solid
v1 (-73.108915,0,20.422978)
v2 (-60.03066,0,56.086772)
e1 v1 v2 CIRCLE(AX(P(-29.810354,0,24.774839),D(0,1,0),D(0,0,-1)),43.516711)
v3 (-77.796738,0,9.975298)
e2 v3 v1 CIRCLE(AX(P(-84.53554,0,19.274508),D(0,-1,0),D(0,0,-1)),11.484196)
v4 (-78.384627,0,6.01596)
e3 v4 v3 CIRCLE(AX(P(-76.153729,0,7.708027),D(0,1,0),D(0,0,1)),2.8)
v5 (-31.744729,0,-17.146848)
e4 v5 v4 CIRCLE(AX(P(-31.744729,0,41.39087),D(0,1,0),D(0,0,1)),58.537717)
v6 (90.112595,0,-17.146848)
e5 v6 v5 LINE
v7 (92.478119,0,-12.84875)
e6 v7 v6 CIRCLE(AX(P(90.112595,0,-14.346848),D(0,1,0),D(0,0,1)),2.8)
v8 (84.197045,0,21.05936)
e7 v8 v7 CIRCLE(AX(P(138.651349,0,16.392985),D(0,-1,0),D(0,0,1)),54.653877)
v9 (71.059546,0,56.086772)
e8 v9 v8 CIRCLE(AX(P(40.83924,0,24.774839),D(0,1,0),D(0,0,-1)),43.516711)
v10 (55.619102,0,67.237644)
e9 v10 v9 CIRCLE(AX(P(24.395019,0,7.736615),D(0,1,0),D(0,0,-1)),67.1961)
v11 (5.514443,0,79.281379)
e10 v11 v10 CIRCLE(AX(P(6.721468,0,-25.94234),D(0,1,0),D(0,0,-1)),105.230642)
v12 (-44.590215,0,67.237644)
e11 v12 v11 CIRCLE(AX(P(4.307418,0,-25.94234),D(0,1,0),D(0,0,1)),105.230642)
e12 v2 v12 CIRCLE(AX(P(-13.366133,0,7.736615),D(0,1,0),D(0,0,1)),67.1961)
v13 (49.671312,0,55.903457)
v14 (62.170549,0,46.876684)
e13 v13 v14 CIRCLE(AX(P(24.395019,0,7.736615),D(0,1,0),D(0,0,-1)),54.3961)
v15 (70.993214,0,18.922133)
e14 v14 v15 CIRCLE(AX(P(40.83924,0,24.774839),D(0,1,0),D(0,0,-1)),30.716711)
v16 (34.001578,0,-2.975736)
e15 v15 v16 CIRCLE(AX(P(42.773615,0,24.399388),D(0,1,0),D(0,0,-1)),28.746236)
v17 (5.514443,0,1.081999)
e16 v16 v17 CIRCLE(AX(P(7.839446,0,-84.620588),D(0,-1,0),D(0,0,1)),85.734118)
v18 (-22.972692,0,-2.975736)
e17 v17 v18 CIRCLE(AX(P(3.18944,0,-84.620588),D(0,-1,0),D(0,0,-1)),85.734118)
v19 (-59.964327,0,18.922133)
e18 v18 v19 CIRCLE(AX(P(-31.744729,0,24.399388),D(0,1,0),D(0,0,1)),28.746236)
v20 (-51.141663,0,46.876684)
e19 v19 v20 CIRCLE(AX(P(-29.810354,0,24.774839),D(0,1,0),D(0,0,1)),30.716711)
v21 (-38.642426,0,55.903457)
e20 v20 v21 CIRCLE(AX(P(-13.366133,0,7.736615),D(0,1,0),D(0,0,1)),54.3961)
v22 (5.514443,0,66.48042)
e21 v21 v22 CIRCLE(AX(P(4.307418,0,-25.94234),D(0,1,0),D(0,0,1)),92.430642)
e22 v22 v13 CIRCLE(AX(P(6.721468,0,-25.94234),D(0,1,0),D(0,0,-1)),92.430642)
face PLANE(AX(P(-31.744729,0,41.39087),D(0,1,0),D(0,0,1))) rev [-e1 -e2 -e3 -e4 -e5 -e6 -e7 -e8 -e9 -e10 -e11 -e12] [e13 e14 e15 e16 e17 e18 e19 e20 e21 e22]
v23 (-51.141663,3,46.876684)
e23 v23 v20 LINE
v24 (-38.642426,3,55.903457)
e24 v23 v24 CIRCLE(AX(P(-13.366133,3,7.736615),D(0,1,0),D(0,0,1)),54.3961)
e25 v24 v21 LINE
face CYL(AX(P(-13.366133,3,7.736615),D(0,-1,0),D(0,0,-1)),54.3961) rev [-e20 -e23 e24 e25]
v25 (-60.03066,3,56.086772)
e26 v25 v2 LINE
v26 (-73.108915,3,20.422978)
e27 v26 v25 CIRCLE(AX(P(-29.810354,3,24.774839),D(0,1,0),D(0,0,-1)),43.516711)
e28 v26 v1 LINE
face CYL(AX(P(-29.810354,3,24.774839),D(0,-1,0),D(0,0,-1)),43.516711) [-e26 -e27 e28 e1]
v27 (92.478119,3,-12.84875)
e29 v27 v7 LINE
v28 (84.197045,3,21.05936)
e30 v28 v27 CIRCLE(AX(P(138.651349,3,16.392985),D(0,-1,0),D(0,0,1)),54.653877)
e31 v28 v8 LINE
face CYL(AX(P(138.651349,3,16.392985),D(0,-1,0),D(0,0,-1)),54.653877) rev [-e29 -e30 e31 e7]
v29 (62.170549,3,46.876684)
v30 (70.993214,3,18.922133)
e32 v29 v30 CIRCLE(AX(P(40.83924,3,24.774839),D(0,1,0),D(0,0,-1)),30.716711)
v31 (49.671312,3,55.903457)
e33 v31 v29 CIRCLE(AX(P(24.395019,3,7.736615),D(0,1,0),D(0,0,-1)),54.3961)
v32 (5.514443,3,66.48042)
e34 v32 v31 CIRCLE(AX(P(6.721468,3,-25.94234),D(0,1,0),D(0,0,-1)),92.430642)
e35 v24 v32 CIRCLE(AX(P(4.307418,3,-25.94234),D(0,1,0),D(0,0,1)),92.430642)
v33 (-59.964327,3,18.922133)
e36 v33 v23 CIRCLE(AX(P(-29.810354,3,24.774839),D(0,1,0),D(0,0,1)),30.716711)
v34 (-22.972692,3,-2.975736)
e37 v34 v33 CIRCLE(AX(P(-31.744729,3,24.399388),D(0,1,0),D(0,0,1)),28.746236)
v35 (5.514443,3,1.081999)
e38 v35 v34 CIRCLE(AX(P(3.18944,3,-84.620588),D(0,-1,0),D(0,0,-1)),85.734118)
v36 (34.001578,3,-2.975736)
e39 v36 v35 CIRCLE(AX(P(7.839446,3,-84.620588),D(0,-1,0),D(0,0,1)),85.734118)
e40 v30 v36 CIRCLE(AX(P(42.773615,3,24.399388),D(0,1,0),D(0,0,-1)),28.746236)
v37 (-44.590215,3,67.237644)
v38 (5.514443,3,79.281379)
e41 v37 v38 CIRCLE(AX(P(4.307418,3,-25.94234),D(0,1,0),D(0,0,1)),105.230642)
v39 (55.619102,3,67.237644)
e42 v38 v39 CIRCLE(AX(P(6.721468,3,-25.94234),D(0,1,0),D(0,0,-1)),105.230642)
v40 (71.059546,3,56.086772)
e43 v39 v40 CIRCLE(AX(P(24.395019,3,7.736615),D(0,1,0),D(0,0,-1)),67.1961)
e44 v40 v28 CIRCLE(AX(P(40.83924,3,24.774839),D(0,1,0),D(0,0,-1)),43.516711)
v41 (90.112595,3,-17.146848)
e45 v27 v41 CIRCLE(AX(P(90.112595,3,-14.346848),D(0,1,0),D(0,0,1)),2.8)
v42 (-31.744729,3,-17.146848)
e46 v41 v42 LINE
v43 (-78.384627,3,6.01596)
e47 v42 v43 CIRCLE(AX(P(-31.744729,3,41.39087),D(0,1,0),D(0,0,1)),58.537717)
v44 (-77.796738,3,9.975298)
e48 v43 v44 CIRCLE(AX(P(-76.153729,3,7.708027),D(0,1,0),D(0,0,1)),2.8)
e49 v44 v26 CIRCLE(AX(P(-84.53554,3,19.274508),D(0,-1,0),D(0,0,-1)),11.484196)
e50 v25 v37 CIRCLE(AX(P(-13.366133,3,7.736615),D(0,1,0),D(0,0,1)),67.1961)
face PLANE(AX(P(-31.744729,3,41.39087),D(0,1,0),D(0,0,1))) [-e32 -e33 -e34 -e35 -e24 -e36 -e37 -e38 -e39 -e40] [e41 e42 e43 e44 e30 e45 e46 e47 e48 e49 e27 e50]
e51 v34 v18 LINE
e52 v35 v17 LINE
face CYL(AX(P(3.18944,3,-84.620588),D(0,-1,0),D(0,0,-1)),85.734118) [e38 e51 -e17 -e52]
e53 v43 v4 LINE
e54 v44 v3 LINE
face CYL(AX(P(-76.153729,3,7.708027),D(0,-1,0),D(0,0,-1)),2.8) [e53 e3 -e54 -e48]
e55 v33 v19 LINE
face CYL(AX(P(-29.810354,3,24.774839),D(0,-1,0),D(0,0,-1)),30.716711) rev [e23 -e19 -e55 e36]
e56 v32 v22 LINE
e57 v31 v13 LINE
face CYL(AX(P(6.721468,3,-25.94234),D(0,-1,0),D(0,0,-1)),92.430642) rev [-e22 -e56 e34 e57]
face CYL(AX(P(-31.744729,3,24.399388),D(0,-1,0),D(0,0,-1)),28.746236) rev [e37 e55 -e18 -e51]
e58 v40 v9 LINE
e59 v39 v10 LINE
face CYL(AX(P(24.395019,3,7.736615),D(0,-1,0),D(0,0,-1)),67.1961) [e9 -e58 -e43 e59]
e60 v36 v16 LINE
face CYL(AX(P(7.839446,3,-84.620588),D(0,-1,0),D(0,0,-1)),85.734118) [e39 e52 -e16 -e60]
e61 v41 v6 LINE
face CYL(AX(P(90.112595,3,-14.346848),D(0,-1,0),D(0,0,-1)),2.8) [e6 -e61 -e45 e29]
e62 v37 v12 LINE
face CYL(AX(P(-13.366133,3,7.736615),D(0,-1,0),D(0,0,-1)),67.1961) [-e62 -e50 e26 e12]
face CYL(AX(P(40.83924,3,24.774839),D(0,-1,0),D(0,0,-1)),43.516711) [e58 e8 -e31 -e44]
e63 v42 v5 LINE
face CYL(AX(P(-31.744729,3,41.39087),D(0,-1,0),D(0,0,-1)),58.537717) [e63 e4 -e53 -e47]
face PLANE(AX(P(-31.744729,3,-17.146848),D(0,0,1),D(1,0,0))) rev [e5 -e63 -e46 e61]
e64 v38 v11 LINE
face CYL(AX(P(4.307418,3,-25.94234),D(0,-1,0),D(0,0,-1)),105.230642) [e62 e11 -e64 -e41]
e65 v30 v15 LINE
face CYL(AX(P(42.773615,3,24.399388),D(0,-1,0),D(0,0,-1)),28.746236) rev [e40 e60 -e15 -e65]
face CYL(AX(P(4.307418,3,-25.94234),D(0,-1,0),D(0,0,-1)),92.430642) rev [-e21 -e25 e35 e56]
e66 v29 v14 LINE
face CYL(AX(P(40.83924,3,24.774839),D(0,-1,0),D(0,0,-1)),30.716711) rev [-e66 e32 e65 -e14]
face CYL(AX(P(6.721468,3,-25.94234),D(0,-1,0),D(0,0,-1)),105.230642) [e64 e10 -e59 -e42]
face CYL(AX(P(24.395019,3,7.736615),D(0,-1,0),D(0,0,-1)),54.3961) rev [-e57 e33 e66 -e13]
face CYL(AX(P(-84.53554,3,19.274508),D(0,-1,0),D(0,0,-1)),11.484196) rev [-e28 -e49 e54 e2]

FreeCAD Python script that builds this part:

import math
import FreeCAD as App
import Part
import Sketcher

V = App.Vector
Q = App.Units.Quantity

doc = App.newDocument("Part")
body = doc.addObject("PartDesign::Body", "Body")

# Sketch on XZ plane
sketch1 = body.newObject("Sketcher::SketchObject", "Sketch")
sketch1.AttachmentSupport = (doc.getObject("XZ_Plane"), [""])
sketch1.MapMode = "FlatFace"
sketch1.addGeometry(Part.LineSegment(V(90.1, -17.1, 0), V(-31.7, -17.1, 0)), False)
sketch1.addGeometry(Part.ArcOfCircle(Part.Circle(V(-31.7, 41.4, 0), V(0, 0, 1), 58.5), math.radians(-143), math.radians(-90)), False)
sketch1.addGeometry(Part.ArcOfCircle(Part.Circle(V(-76.2, 7.7, 0), V(0, 0, 1), 2.8), math.radians(126), math.radians(217)), False)
sketch1.addGeometry(Part.ArcOfCircle(Part.Circle(V(-84.5, 19.3, 0), V(0, 0, 1), 11.5), math.radians(-54), math.radians(6)), False)
sketch1.addGeometry(Part.ArcOfCircle(Part.Circle(V(-29.8, 24.8, 0), V(0, 0, 1), 43.5), math.radians(134), math.radians(186)), False)
sketch1.addGeometry(Part.ArcOfCircle(Part.Circle(V(-13.4, 7.7, 0), V(0, 0, 1), 67.2), math.radians(117.69), math.radians(133.98)), False)
sketch1.addGeometry(Part.ArcOfCircle(Part.Circle(V(4.3, -25.9, 0), V(0, 0, 1), 105.2), math.radians(89), math.radians(118)), False)
sketch1.addGeometry(Part.ArcOfCircle(Part.Circle(V(6.7, -25.9, 0), V(0, 0, 1), 105.2), math.radians(62), math.radians(91)), False)
sketch1.addGeometry(Part.ArcOfCircle(Part.Circle(V(24.4, 7.7, 0), V(0, 0, 1), 67.2), math.radians(46.02), math.radians(62.31)), False)
sketch1.addGeometry(Part.ArcOfCircle(Part.Circle(V(40.8, 24.8, 0), V(0, 0, 1), 43.5), math.radians(-5), math.radians(46)), False)
sketch1.addGeometry(Part.ArcOfCircle(Part.Circle(V(138.7, 16.4, 0), V(0, 0, 1), 54.7), math.radians(175), math.radians(212)), False)
sketch1.addGeometry(Part.ArcOfCircle(Part.Circle(V(90.1, -14.3, 0), V(0, 0, 1), 2.8), math.radians(-90), math.radians(32)), False)
sketch1.addGeometry(Part.ArcOfCircle(Part.Circle(V(7.8, -84.6, 0), V(0, 0, 1), 85.7), math.radians(72.23), math.radians(91.55)), False)
sketch1.addGeometry(Part.ArcOfCircle(Part.Circle(V(42.8, 24.4, 0), V(0, 0, 1), 28.7), math.radians(-108), math.radians(-11)), False)
sketch1.addGeometry(Part.ArcOfCircle(Part.Circle(V(40.8, 24.8, 0), V(0, 0, 1), 30.7), math.radians(-11), math.radians(46)), False)
sketch1.addGeometry(Part.ArcOfCircle(Part.Circle(V(24.4, 7.7, 0), V(0, 0, 1), 54.4), math.radians(46.02), math.radians(62.31)), False)
sketch1.addGeometry(Part.ArcOfCircle(Part.Circle(V(6.7, -25.9, 0), V(0, 0, 1), 92.4), math.radians(62), math.radians(91)), False)
sketch1.addGeometry(Part.ArcOfCircle(Part.Circle(V(4.3, -25.9, 0), V(0, 0, 1), 92.4), math.radians(89), math.radians(118)), False)
sketch1.addGeometry(Part.ArcOfCircle(Part.Circle(V(-13.4, 7.7, 0), V(0, 0, 1), 54.4), math.radians(117.69), math.radians(133.98)), False)
sketch1.addGeometry(Part.ArcOfCircle(Part.Circle(V(-29.8, 24.8, 0), V(0, 0, 1), 30.7), math.radians(134), math.radians(191)), False)
sketch1.addGeometry(Part.ArcOfCircle(Part.Circle(V(-31.7, 24.4, 0), V(0, 0, 1), 28.7), math.radians(-169), math.radians(-72)), False)
sketch1.addGeometry(Part.ArcOfCircle(Part.Circle(V(3.2, -84.6, 0), V(0, 0, 1), 85.7), math.radians(88.45), math.radians(107.77)), False)
sketch1.addConstraint(Sketcher.Constraint("Tangent", 0, 2, 1, 2))
sketch1.addConstraint(Sketcher.Constraint("Tangent", 1, 1, 2, 2))
sketch1.addConstraint(Sketcher.Constraint("Tangent", 2, 1, 3, 1))
sketch1.addConstraint(Sketcher.Constraint("Tangent", 3, 2, 4, 2))
sketch1.addConstraint(Sketcher.Constraint("Tangent", 4, 1, 5, 2))
sketch1.addConstraint(Sketcher.Constraint("Tangent", 5, 1, 6, 2))
sketch1.addConstraint(Sketcher.Constraint("Coincident", 6, 1, 7, 2))
sketch1.addConstraint(Sketcher.Constraint("Tangent", 7, 1, 8, 2))
sketch1.addConstraint(Sketcher.Constraint("Tangent", 8, 1, 9, 2))
sketch1.addConstraint(Sketcher.Constraint("Tangent", 9, 1, 10, 1))
sketch1.addConstraint(Sketcher.Constraint("Tangent", 10, 2, 11, 2))
sketch1.addConstraint(Sketcher.Constraint("Tangent", 11, 1, 0, 1))
sketch1.addConstraint(Sketcher.Constraint("Tangent", 12, 1, 13, 1))
sketch1.addConstraint(Sketcher.Constraint("Tangent", 13, 2, 14, 1))
sketch1.addConstraint(Sketcher.Constraint("Tangent", 14, 2, 15, 1))
sketch1.addConstraint(Sketcher.Constraint("Tangent", 15, 2, 16, 1))
sketch1.addConstraint(Sketcher.Constraint("Coincident", 16, 2, 17, 1))
sketch1.addConstraint(Sketcher.Constraint("Tangent", 17, 2, 18, 1))
sketch1.addConstraint(Sketcher.Constraint("Tangent", 18, 2, 19, 1))
sketch1.addConstraint(Sketcher.Constraint("Tangent", 19, 2, 20, 1))
sketch1.addConstraint(Sketcher.Constraint("Tangent", 20, 2, 21, 2))
sketch1.addConstraint(Sketcher.Constraint("Coincident", 21, 1, 12, 2))
sketch1.addConstraint(Sketcher.Constraint("Horizontal", 0))
sketch1.addConstraint(Sketcher.Constraint("Coincident", 14, 3, 9, 3))
sketch1.addConstraint(Sketcher.Constraint("Coincident", 15, 3, 8, 3))
sketch1.addConstraint(Sketcher.Constraint("Coincident", 16, 3, 7, 3))
sketch1.addConstraint(Sketcher.Constraint("Coincident", 17, 3, 6, 3))
sketch1.addConstraint(Sketcher.Constraint("Coincident", 18, 3, 5, 3))
sketch1.addConstraint(Sketcher.Constraint("Coincident", 19, 3, 4, 3))
sketch1.addConstraint(Sketcher.Constraint("Equal", 6, 7))
sketch1.addConstraint(Sketcher.Constraint("Equal", 5, 8))
sketch1.addConstraint(Sketcher.Constraint("Equal", 4, 9))
sketch1.addConstraint(Sketcher.Constraint("Equal", 2, 11))
sketch1.addConstraint(Sketcher.Constraint("Equal", 16, 17))
sketch1.addConstraint(Sketcher.Constraint("Equal", 13, 20))
sketch1.addConstraint(Sketcher.Constraint("Equal", 12, 21))
sketch1.addConstraint(Sketcher.Constraint("Horizontal", 6, 3, 7, 3))
sketch1.addConstraint(Sketcher.Constraint("Horizontal", 5, 3, 8, 3))
sketch1.addConstraint(Sketcher.Constraint("Horizontal", 4, 3, 9, 3))
sketch1.addConstraint(Sketcher.Constraint("Horizontal", 13, 3, 20, 3))
sketch1.addConstraint(Sketcher.Constraint("Horizontal", 12, 3, 21, 3))
sketch1.addConstraint(Sketcher.Constraint("Vertical", 1, 3, 20, 3))
sketch1.addConstraint(Sketcher.Constraint("Radius", 2, Q("2.8 mm")))
sketch1.addConstraint(Sketcher.Constraint("Radius", 5, Q("67.1961 mm")))
sketch1.addConstraint(Sketcher.Constraint("Radius", 15, Q("54.3961 mm")))
sketch1.addConstraint(Sketcher.Constraint("Radius", 4, Q("43.516711 mm")))
sketch1.addConstraint(Sketcher.Constraint("Radius", 6, Q("105.230642 mm")))
sketch1.addConstraint(Sketcher.Constraint("Radius", 12, Q("85.734118 mm")))
sketch1.addConstraint(Sketcher.Constraint("DistanceY", -1, 1, 21, 1, Q("1.081999 mm")))
sketch1.addConstraint(Sketcher.Constraint("Radius", 1, Q("58.537717 mm")))
sketch1.addConstraint(Sketcher.Constraint("Radius", 3, Q("11.484196 mm")))
sketch1.addConstraint(Sketcher.Constraint("Radius", 10, Q("54.653877 mm")))
sketch1.addConstraint(Sketcher.Constraint("Radius", 13, Q("28.746236 mm")))
sketch1.addConstraint(Sketcher.Constraint("DistanceX", 2, 3, 1, 3, Q("44.409 mm")))
sketch1.addConstraint(Sketcher.Constraint("DistanceY", -1, 1, 2, 1, Q("9.975298 mm")))
sketch1.addConstraint(Sketcher.Constraint("DistanceX", -1, 1, 7, 1, Q("55.619102 mm")))
sketch1.addConstraint(Sketcher.Constraint("DistanceX", 5, 3, 7, 3, Q("20.087601 mm")))
sketch1.addConstraint(Sketcher.Constraint("DistanceX", 3, 3, 2, 1, Q("6.738802 mm")))
sketch1.addConstraint(Sketcher.Constraint("DistanceX", 8, 1, 9, 1, Q("13.137499 mm")))
sketch1.addConstraint(Sketcher.Constraint("DistanceX", 13, 3, 13, 2, Q("28.219598 mm")))
sketch1.addConstraint(Sketcher.Constraint("DistanceX", 0, 2, 0, 1, Q("121.857324 mm")))
sketch1.addConstraint(Sketcher.Constraint("DistanceX", 1, 3, -1, 1, Q("31.744729 mm")))
pad1 = body.newObject("PartDesign::Pad", "Pad")
pad1.Profile = sketch1
pad1.Length = 3
pad1.Reversed = True

doc.recompute()
